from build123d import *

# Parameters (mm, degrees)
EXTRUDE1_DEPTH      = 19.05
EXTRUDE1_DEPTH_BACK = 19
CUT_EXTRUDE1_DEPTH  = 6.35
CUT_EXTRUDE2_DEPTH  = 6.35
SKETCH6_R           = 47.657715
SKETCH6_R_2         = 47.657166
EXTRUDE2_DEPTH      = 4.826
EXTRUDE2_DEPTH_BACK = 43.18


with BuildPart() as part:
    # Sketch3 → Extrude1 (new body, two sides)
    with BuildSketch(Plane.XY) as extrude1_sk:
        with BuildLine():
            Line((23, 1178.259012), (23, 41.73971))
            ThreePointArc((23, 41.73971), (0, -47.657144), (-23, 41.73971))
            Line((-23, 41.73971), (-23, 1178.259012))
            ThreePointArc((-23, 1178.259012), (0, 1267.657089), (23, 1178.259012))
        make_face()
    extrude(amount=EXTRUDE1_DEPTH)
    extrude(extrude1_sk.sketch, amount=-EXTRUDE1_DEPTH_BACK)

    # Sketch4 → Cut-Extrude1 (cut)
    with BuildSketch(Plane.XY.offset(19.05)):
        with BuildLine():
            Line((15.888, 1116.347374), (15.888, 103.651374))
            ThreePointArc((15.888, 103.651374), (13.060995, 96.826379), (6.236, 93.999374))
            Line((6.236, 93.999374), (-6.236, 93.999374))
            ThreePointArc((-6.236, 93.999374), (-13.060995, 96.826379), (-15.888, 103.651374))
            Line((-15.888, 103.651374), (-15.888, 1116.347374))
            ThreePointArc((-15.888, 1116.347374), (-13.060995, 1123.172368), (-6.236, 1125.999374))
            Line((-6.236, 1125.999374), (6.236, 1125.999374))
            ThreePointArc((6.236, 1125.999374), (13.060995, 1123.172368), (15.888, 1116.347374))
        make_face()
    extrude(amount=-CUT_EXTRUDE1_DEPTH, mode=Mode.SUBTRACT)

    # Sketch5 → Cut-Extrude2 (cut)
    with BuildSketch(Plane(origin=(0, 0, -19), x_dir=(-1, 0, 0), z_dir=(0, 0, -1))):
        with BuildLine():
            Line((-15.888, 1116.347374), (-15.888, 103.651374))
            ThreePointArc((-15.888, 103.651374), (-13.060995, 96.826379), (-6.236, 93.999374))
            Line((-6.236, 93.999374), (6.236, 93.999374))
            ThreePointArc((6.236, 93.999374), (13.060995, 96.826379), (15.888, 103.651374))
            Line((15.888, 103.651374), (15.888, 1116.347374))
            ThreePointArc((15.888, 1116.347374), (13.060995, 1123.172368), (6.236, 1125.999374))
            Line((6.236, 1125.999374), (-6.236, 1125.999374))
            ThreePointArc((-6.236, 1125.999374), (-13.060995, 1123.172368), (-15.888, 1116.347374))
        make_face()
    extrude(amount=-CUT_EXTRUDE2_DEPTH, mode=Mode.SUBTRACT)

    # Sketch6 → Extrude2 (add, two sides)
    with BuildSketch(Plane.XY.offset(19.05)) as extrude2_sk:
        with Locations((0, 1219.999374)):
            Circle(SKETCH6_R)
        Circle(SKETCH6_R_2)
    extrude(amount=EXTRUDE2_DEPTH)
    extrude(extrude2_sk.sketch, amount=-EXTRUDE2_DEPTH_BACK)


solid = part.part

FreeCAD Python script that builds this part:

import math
import FreeCAD as App
import Part
import Sketcher
Q = App.Units.Quantity

doc = App.newDocument("Part")
body = doc.addObject("PartDesign::Body", "Body")

# Sketch on XY plane
sketch1 = body.newObject("Sketcher::SketchObject", "Sketch")
sketch1.AttachmentSupport = (doc.getObject("XY_Plane"), [""])
sketch1.MapMode = "FlatFace"
sketch1.addGeometry(Part.LineSegment(App.Vector(23, 42, 0), App.Vector(23, 1178, 0)), False)
sketch1.addGeometry(Part.ArcOfCircle(Part.Circle(App.Vector(0, 1220, 0), App.Vector(0, 0, 1), 48), math.radians(-61), math.radians(241)), False)
sketch1.addGeometry(Part.LineSegment(App.Vector(-23, 1178, 0), App.Vector(-23, 42, 0)), False)
sketch1.addGeometry(Part.ArcOfCircle(Part.Circle(App.Vector(0, 0, 0), App.Vector(0, 0, 1), 48), math.radians(119), math.radians(421)), False)
sketch1.addConstraint(Sketcher.Constraint("Coincident", 0, 2, 1, 1))
sketch1.addConstraint(Sketcher.Constraint("Coincident", 1, 2, 2, 1))
sketch1.addConstraint(Sketcher.Constraint("Coincident", 2, 2, 3, 1))
sketch1.addConstraint(Sketcher.Constraint("Coincident", 3, 2, 0, 1))
sketch1.addConstraint(Sketcher.Constraint("Vertical", 0))
sketch1.addConstraint(Sketcher.Constraint("Vertical", 2))
sketch1.addConstraint(Sketcher.Constraint("Coincident", 3, 3, -1, 1))
sketch1.addConstraint(Sketcher.Constraint("Symmetric", 0, 2, 1, 2, -2))
sketch1.addConstraint(Sketcher.Constraint("DistanceY", 0, 1, 0, 2, Q("1136.519302 mm")))
sketch1.addConstraint(Sketcher.Constraint("Radius", 1, Q("47.657715 mm")))
sketch1.addConstraint(Sketcher.Constraint("Radius", 3, Q("47.657144 mm")))
sketch1.addConstraint(Sketcher.Constraint("DistanceX", -1, 1, 0, 2, Q("23 mm")))
pad1 = body.newObject("PartDesign::Pad", "Pad")
pad1.Profile = sketch1
pad1.Type = "TwoLengths"
pad1.Length = Q("0.75 in")
pad1.Length2 = 19

# Sketch on XY plane
sketch2 = body.newObject("Sketcher::SketchObject", "Sketch001")
sketch2.AttachmentSupport = (doc.getObject("XY_Plane"), [""])
sketch2.MapMode = "FlatFace"
sketch2.AttachmentOffset = App.Placement(App.Vector(0, 0, 0.75 * 25.4), App.Rotation())
sketch2.addGeometry(Part.LineSegment(App.Vector(16, 104, 0), App.Vector(16, 1116, 0)), False)
sketch2.addGeometry(Part.ArcOfCircle(Part.Circle(App.Vector(6, 1116, 0), App.Vector(0, 0, 1), 10), math.radians(0), math.radians(90)), False)
sketch2.addGeometry(Part.LineSegment(App.Vector(6, 1126, 0), App.Vector(-6, 1126, 0)), False)
sketch2.addGeometry(Part.ArcOfCircle(Part.Circle(App.Vector(-6, 1116, 0), App.Vector(0, 0, 1), 10), math.radians(90), math.radians(180)), False)
sketch2.addGeometry(Part.LineSegment(App.Vector(-16, 1116, 0), App.Vector(-16, 104, 0)), False)
sketch2.addGeometry(Part.ArcOfCircle(Part.Circle(App.Vector(-6, 104, 0), App.Vector(0, 0, 1), 10), math.radians(180), math.radians(270)), False)
sketch2.addGeometry(Part.LineSegment(App.Vector(-6, 94, 0), App.Vector(6, 94, 0)), False)
sketch2.addGeometry(Part.ArcOfCircle(Part.Circle(App.Vector(6, 104, 0), App.Vector(0, 0, 1), 10), math.radians(-90), math.radians(0)), False)
sketch2.addConstraint(Sketcher.Constraint("Tangent", 0, 2, 1, 1))
sketch2.addConstraint(Sketcher.Constraint("Tangent", 1, 2, 2, 1))
sketch2.addConstraint(Sketcher.Constraint("Tangent", 2, 2, 3, 1))
sketch2.addConstraint(Sketcher.Constraint("Tangent", 3, 2, 4, 1))
sketch2.addConstraint(Sketcher.Constraint("Tangent", 4, 2, 5, 1))
sketch2.addConstraint(Sketcher.Constraint("Tangent", 5, 2, 6, 1))
sketch2.addConstraint(Sketcher.Constraint("Tangent", 6, 2, 7, 1))
sketch2.addConstraint(Sketcher.Constraint("Tangent", 7, 2, 0, 1))
sketch2.addConstraint(Sketcher.Constraint("Vertical", 0))
sketch2.addConstraint(Sketcher.Constraint("Horizontal", 2))
sketch2.addConstraint(Sketcher.Constraint("Vertical", 4))
sketch2.addConstraint(Sketcher.Constraint("Horizontal", 6))
sketch2.addConstraint(Sketcher.Constraint("Equal", 1, 3))
sketch2.addConstraint(Sketcher.Constraint("Equal", 3, 5))
sketch2.addConstraint(Sketcher.Constraint("Equal", 5, 7))
sketch2.addConstraint(Sketcher.Constraint("Radius", 1, Q("0.38 in")))
sketch2.addConstraint(Sketcher.Constraint("DistanceX", 2, 2, 2, 1, Q("12.472 mm")))
sketch2.addConstraint(Sketcher.Constraint("DistanceY", 0, 1, 0, 2, Q("1012.696 mm")))
sketch2.addConstraint(Sketcher.Constraint("DistanceX", -1, 1, 1, 3, Q("6.235999 mm")))
sketch2.addConstraint(Sketcher.Constraint("DistanceY", -1, 1, 1, 3, Q("1116.347373 mm")))
pocket1 = body.newObject("PartDesign::Pocket", "Pocket")
pocket1.Profile = sketch2
pocket1.Length = Q("0.25 in")

# Sketch on XY plane
sketch3 = body.newObject("Sketcher::SketchObject", "Sketch002")
sketch3.AttachmentSupport = (doc.getObject("XY_Plane"), [""])
sketch3.MapMode = "FlatFace"
sketch3.AttachmentOffset = App.Placement(App.Vector(0, 0, -19), App.Rotation())
sketch3.addGeometry(Part.LineSegment(App.Vector(16, 1116, 0), App.Vector(16, 104, 0)), False)
sketch3.addGeometry(Part.ArcOfCircle(Part.Circle(App.Vector(6, 104, 0), App.Vector(0, 0, 1), 10), math.radians(-90), math.radians(0)), False)
sketch3.addGeometry(Part.LineSegment(App.Vector(6, 94, 0), App.Vector(-6, 94, 0)), False)
sketch3.addGeometry(Part.ArcOfCircle(Part.Circle(App.Vector(-6, 104, 0), App.Vector(0, 0, 1), 10), math.radians(180), math.radians(270)), False)
sketch3.addGeometry(Part.LineSegment(App.Vector(-16, 104, 0), App.Vector(-16, 1116, 0)), False)
sketch3.addGeometry(Part.ArcOfCircle(Part.Circle(App.Vector(-6, 1116, 0), App.Vector(0, 0, 1), 10), math.radians(90), math.radians(180)), False)
sketch3.addGeometry(Part.LineSegment(App.Vector(-6, 1126, 0), App.Vector(6, 1126, 0)), False)
sketch3.addGeometry(Part.ArcOfCircle(Part.Circle(App.Vector(6, 1116, 0), App.Vector(0, 0, 1), 10), math.radians(0), math.radians(90)), False)
sketch3.addConstraint(Sketcher.Constraint("Tangent", 0, 2, 1, 2))
sketch3.addConstraint(Sketcher.Constraint("Tangent", 1, 1, 2, 1))
sketch3.addConstraint(Sketcher.Constraint("Tangent", 2, 2, 3, 2))
sketch3.addConstraint(Sketcher.Constraint("Tangent", 3, 1, 4, 1))
sketch3.addConstraint(Sketcher.Constraint("Tangent", 4, 2, 5, 2))
sketch3.addConstraint(Sketcher.Constraint("Tangent", 5, 1, 6, 1))
sketch3.addConstraint(Sketcher.Constraint("Tangent", 6, 2, 7, 2))
sketch3.addConstraint(Sketcher.Constraint("Tangent", 7, 1, 0, 1))
sketch3.addConstraint(Sketcher.Constraint("Vertical", 0))
sketch3.addConstraint(Sketcher.Constraint("Horizontal", 2))
sketch3.addConstraint(Sketcher.Constraint("Vertical", 4))
sketch3.addConstraint(Sketcher.Constraint("Horizontal", 6))
sketch3.addConstraint(Sketcher.Constraint("Equal", 1, 3))
sketch3.addConstraint(Sketcher.Constraint("Equal", 3, 5))
sketch3.addConstraint(Sketcher.Constraint("Equal", 5, 7))
sketch3.addConstraint(Sketcher.Constraint("Radius", 1, Q("0.38 in")))
sketch3.addConstraint(Sketcher.Constraint("DistanceX", 2, 2, 2, 1, Q("12.472 mm")))
sketch3.addConstraint(Sketcher.Constraint("DistanceY", 0, 2, 0, 1, Q("1012.696 mm")))
sketch3.addConstraint(Sketcher.Constraint("DistanceX", -1, 1, 1, 3, Q("6.236001 mm")))
sketch3.addConstraint(Sketcher.Constraint("DistanceY", -1, 1, 1, 3, Q("103.651373 mm")))
pocket2 = body.newObject("PartDesign::Pocket", "Pocket001")
pocket2.Profile = sketch3
pocket2.Length = Q("0.25 in")
pocket2.Reversed = True

# Sketch on XY plane
sketch4 = body.newObject("Sketcher::SketchObject", "Sketch003")
sketch4.AttachmentSupport = (doc.getObject("XY_Plane"), [""])
sketch4.MapMode = "FlatFace"
sketch4.AttachmentOffset = App.Placement(App.Vector(0, 0, 0.75 * 25.4), App.Rotation())
sketch4.addGeometry(Part.Circle(App.Vector(0, 1219.999374, 0), App.Vector(0, 0, 1), 47.657715), False)
sketch4.addGeometry(Part.Circle(App.Vector(0, 0, 0), App.Vector(0, 0, 1), 47.657166), False)
sketch4.addConstraint(Sketcher.Constraint("Coincident", 1, 3, -1, 1))
sketch4.addConstraint(Sketcher.Constraint("PointOnObject", 0, 3, -2))
sketch4.addConstraint(Sketcher.Constraint("Diameter", 0, Q("95.31543 mm")))
sketch4.addConstraint(Sketcher.Constraint("Diameter", 1, Q("95.314332 mm")))
sketch4.addConstraint(Sketcher.Constraint("DistanceY", -1, 1, 0, 3, Q("1219.999374 mm")))
pad2 = body.newObject("PartDesign::Pad", "Pad001")
pad2.Profile = sketch4
pad2.Type = "TwoLengths"
pad2.Length = Q("0.19 in")
pad2.Length2 = Q("1.7 in")

doc.recompute()
